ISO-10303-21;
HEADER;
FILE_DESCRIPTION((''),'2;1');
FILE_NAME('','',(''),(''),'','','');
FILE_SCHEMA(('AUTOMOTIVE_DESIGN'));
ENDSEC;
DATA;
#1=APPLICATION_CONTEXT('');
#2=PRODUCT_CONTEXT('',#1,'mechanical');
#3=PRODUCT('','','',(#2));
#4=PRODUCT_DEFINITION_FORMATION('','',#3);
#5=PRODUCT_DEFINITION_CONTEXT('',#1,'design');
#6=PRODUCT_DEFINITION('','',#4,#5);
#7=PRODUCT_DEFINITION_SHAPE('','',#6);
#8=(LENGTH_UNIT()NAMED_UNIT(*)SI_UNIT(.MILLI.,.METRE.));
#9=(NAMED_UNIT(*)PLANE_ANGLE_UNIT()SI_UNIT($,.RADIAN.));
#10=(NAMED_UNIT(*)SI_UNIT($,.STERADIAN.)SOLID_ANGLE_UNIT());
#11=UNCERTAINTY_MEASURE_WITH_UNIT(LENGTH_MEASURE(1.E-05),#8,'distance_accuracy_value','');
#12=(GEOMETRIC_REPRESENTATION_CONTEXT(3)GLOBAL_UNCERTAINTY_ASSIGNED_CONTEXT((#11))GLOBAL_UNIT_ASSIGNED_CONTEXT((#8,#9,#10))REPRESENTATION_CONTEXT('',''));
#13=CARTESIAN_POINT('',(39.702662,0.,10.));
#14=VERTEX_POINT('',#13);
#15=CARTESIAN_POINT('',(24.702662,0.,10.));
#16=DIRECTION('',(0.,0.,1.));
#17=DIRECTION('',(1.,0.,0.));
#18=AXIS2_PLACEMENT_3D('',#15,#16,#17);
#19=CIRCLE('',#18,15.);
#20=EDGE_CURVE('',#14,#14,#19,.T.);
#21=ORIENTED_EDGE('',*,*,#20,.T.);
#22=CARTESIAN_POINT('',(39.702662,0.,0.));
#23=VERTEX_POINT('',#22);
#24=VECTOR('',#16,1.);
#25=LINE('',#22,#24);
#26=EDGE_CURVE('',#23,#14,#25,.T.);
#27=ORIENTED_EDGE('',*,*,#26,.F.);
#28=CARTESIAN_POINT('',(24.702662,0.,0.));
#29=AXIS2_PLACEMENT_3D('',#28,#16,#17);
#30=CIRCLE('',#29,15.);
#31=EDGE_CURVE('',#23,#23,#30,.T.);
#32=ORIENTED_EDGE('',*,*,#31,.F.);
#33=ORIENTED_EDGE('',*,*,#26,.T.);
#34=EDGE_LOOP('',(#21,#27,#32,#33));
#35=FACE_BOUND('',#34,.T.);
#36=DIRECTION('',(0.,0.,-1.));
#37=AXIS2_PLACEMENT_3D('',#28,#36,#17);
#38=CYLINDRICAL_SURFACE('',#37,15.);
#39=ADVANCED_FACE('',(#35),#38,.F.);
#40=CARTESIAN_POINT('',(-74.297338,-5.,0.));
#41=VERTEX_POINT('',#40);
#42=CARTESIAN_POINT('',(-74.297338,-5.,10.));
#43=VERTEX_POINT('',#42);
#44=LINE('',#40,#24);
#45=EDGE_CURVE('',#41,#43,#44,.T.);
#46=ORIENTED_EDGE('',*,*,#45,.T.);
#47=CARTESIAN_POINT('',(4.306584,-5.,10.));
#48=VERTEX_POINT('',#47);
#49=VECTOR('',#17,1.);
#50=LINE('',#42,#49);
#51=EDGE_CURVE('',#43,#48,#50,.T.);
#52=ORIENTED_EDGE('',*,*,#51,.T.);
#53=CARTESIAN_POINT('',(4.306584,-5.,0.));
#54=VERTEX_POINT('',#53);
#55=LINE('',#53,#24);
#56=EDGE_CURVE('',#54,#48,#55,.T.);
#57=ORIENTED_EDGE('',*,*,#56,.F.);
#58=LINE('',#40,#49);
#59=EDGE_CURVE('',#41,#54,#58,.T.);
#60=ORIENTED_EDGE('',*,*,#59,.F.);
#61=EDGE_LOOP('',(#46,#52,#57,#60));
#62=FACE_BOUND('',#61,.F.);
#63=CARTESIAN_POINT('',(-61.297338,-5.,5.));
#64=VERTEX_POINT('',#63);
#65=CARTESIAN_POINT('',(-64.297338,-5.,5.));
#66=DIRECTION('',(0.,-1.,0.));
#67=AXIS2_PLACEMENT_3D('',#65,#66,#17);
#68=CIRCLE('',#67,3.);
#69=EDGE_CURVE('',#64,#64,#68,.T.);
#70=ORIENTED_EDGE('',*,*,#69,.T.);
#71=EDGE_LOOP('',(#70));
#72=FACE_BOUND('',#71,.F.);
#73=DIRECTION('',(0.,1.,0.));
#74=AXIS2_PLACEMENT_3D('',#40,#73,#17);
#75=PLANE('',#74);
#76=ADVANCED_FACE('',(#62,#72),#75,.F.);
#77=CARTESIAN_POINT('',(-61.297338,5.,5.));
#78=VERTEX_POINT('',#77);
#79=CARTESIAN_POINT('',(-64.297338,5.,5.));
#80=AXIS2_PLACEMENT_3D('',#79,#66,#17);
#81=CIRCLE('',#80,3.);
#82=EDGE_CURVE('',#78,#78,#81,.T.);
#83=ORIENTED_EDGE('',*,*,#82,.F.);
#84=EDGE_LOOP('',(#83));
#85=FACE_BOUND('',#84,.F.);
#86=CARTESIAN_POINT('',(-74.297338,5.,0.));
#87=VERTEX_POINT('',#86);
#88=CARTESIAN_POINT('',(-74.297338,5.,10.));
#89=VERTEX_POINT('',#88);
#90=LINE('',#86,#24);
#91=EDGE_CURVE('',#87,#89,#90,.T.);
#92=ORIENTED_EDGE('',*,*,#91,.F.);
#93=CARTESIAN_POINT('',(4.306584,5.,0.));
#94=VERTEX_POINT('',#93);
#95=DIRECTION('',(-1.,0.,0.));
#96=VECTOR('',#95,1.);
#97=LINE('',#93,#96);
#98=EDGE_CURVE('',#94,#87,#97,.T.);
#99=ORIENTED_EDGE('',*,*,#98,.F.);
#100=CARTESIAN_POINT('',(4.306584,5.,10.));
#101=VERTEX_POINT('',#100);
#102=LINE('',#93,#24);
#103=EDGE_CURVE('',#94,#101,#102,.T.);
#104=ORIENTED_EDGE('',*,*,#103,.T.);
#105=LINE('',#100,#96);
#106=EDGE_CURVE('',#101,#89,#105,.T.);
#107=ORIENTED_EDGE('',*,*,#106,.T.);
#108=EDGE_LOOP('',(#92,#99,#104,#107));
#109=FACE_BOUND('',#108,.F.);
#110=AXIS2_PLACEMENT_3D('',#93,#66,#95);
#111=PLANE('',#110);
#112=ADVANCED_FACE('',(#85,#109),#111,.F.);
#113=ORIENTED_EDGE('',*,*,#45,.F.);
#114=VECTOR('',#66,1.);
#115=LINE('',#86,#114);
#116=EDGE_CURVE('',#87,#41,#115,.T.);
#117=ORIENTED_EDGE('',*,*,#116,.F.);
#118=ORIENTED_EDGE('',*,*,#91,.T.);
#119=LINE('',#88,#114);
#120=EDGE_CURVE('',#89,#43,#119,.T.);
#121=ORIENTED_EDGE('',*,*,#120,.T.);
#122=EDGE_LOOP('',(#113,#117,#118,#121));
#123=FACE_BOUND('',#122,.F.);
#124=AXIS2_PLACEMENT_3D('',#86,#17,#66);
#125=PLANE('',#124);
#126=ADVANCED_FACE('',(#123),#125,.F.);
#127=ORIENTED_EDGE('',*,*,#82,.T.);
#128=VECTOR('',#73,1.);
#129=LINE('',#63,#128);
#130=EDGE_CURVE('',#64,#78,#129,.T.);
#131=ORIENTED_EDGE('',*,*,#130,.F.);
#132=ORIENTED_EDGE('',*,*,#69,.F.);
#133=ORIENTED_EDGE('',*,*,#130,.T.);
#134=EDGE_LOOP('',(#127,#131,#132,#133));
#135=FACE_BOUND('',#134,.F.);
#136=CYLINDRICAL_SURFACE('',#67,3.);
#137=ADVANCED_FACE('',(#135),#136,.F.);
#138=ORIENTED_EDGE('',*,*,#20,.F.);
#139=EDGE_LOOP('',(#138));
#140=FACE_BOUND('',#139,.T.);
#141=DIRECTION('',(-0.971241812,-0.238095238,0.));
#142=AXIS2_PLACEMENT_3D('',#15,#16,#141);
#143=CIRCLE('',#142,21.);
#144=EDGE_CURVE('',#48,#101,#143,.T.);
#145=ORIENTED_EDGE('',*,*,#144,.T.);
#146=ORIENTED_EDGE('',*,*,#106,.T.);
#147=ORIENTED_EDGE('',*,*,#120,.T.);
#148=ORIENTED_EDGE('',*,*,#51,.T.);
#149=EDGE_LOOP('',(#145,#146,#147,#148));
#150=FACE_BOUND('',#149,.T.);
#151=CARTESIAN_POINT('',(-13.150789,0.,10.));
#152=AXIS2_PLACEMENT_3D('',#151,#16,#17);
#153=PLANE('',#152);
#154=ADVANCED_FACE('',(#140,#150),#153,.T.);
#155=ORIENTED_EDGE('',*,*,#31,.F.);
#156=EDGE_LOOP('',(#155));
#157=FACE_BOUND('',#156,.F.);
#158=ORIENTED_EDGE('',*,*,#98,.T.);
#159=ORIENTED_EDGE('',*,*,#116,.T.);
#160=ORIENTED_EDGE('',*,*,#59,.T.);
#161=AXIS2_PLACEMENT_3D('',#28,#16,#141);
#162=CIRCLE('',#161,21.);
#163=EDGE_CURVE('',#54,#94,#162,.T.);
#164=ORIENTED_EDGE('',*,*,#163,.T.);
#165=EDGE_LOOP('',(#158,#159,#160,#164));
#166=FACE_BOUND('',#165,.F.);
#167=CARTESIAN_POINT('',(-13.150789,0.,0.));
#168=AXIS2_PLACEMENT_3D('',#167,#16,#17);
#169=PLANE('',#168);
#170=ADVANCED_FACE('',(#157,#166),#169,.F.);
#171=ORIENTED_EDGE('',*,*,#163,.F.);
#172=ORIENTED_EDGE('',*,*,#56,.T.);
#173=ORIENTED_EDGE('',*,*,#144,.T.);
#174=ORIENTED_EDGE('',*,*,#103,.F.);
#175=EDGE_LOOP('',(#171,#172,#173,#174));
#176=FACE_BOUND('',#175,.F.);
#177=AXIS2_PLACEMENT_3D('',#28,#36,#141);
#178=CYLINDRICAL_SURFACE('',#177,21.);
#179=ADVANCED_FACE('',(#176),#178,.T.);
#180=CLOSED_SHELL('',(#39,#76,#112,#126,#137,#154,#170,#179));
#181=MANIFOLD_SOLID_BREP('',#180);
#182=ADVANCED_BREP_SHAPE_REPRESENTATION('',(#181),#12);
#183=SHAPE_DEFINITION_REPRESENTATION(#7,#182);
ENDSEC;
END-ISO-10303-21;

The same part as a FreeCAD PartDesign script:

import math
import FreeCAD as App
import Part
import Sketcher
from FreeCAD import Vector
Q = App.Units.Quantity

doc = App.newDocument("Part")
body = doc.addObject("PartDesign::Body", "Body")

sketch1 = body.newObject("Sketcher::SketchObject", "Sketch")
sketch1.AttachmentSupport = (doc.getObject("XY_Plane"), [""])
sketch1.MapMode = "FlatFace"
sketch1.addGeometry(Part.LineSegment(Vector(4, 5, 0), Vector(-74, 5, 0)), False)
sketch1.addGeometry(Part.LineSegment(Vector(-74, 5, 0), Vector(-74, -5, 0)), False)
sketch1.addGeometry(Part.LineSegment(Vector(-74, -5, 0), Vector(4, -5, 0)), False)
sketch1.addGeometry(Part.ArcOfCircle(Part.Circle(Vector(25, 0, 0), Vector(0, 0, 1), 21), math.radians(-166), math.radians(166)), False)
sketch1.addGeometry(Part.Circle(Vector(25, 0, 0), Vector(0, 0, 1), 15), False)
sketch1.addConstraint(Sketcher.Constraint("Coincident", 0, 2, 1, 1))
sketch1.addConstraint(Sketcher.Constraint("Coincident", 1, 2, 2, 1))
sketch1.addConstraint(Sketcher.Constraint("Coincident", 2, 2, 3, 1))
sketch1.addConstraint(Sketcher.Constraint("Coincident", 3, 2, 0, 1))
sketch1.addConstraint(Sketcher.Constraint("Horizontal", 0))
sketch1.addConstraint(Sketcher.Constraint("Vertical", 1))
sketch1.addConstraint(Sketcher.Constraint("Horizontal", 2))
sketch1.addConstraint(Sketcher.Constraint("Coincident", 4, 3, 3, 3))
sketch1.addConstraint(Sketcher.Constraint("Symmetric", 2, 2, 3, 2, -1))
sketch1.addConstraint(Sketcher.Constraint("Diameter", 4, Q("30 mm")))
sketch1.addConstraint(Sketcher.Constraint("Radius", 3, Q("21 mm")))
sketch1.addConstraint(Sketcher.Constraint("DistanceY", 1, 2, 1, 1, Q("10 mm")))
sketch1.addConstraint(Sketcher.Constraint("DistanceX", 0, 2, 4, 3, Q("99 mm")))
sketch1.addConstraint(Sketcher.Constraint("DistanceX", -1, 1, 4, 3, Q("24.702662 mm")))
pad1 = body.newObject("PartDesign::Pad", "Pad")
pad1.Profile = sketch1
pad1.Length = 10

sketch2 = body.newObject("Sketcher::SketchObject", "Sketch001")
sketch2.AttachmentSupport = (doc.getObject("XZ_Plane"), [""])
sketch2.MapMode = "FlatFace"
sketch2.AttachmentOffset = App.Placement(Vector(0, 0, 5), App.Rotation())
sketch2.addGeometry(Part.Circle(Vector(-64.3, 5, 0), Vector(0, 0, 1), 3), False)
sketch2.addConstraint(Sketcher.Constraint("Diameter", 0, Q("6 mm")))
sketch2.addConstraint(Sketcher.Constraint("DistanceY", -1, 1, 0, 3, Q("5 mm")))
sketch2.addConstraint(Sketcher.Constraint("DistanceX", 0, 3, -1, 1, Q("64.297338 mm")))
pocket1 = body.newObject("PartDesign::Pocket", "Pocket")
pocket1.Profile = sketch2
pocket1.Length = 25

doc.recompute()
